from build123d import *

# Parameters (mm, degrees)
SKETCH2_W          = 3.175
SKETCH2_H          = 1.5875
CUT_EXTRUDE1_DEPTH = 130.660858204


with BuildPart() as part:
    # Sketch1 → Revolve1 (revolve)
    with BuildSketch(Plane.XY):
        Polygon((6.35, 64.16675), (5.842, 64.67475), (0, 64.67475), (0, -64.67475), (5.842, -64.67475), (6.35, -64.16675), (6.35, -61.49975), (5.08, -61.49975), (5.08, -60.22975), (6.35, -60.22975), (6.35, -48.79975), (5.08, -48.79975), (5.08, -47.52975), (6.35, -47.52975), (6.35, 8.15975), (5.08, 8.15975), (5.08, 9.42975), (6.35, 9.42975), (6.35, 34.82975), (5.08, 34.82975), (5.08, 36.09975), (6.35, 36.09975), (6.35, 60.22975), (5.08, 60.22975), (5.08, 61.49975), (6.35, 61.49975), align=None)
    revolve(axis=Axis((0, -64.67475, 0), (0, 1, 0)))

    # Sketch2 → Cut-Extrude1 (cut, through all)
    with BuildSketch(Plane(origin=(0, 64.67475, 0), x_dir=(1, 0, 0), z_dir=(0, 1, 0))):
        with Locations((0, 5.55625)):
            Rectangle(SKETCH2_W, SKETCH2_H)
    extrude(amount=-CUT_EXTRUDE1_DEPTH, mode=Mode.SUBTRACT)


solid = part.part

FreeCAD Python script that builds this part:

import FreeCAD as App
import Part
import Sketcher
Q = App.Units.Quantity

doc = App.newDocument("Part")
body = doc.addObject("PartDesign::Body", "Body")

# Sketch on XY plane
sketch1 = body.newObject("Sketcher::SketchObject", "Sketch")
sketch1.AttachmentSupport = (doc.getObject("XY_Plane"), [""])
sketch1.MapMode = "FlatFace"
sketch1.addGeometry(Part.LineSegment(App.Vector(6.35, 64.16675, 0), App.Vector(5.842, 64.67475, 0)), False)
sketch1.addGeometry(Part.LineSegment(App.Vector(5.842, 64.67475, 0), App.Vector(0, 64.67475, 0)), False)
sketch1.addGeometry(Part.LineSegment(App.Vector(0, 64.67475, 0), App.Vector(0, -64.67475, 0)), False)
sketch1.addGeometry(Part.LineSegment(App.Vector(0, -64.67475, 0), App.Vector(5.842, -64.67475, 0)), False)
sketch1.addGeometry(Part.LineSegment(App.Vector(5.842, -64.67475, 0), App.Vector(6.35, -64.16675, 0)), False)
sketch1.addGeometry(Part.LineSegment(App.Vector(6.35, -64.16675, 0), App.Vector(6.35, -61.49975, 0)), False)
sketch1.addGeometry(Part.LineSegment(App.Vector(6.35, -61.49975, 0), App.Vector(5.08, -61.49975, 0)), False)
sketch1.addGeometry(Part.LineSegment(App.Vector(5.08, -61.49975, 0), App.Vector(5.08, -60.22975, 0)), False)
sketch1.addGeometry(Part.LineSegment(App.Vector(5.08, -60.22975, 0), App.Vector(6.35, -60.22975, 0)), False)
sketch1.addGeometry(Part.LineSegment(App.Vector(6.35, -60.22975, 0), App.Vector(6.35, -48.79975, 0)), False)
sketch1.addGeometry(Part.LineSegment(App.Vector(6.35, -48.79975, 0), App.Vector(5.08, -48.79975, 0)), False)
sketch1.addGeometry(Part.LineSegment(App.Vector(5.08, -48.79975, 0), App.Vector(5.08, -47.52975, 0)), False)
sketch1.addGeometry(Part.LineSegment(App.Vector(5.08, -47.52975, 0), App.Vector(6.35, -47.52975, 0)), False)
sketch1.addGeometry(Part.LineSegment(App.Vector(6.35, -47.52975, 0), App.Vector(6.35, 8.15975, 0)), False)
sketch1.addGeometry(Part.LineSegment(App.Vector(6.35, 8.15975, 0), App.Vector(5.08, 8.15975, 0)), False)
sketch1.addGeometry(Part.LineSegment(App.Vector(5.08, 8.15975, 0), App.Vector(5.08, 9.42975, 0)), False)
sketch1.addGeometry(Part.LineSegment(App.Vector(5.08, 9.42975, 0), App.Vector(6.35, 9.42975, 0)), False)
sketch1.addGeometry(Part.LineSegment(App.Vector(6.35, 9.42975, 0), App.Vector(6.35, 34.82975, 0)), False)
sketch1.addGeometry(Part.LineSegment(App.Vector(6.35, 34.82975, 0), App.Vector(5.08, 34.82975, 0)), False)
sketch1.addGeometry(Part.LineSegment(App.Vector(5.08, 34.82975, 0), App.Vector(5.08, 36.09975, 0)), False)
sketch1.addGeometry(Part.LineSegment(App.Vector(5.08, 36.09975, 0), App.Vector(6.35, 36.09975, 0)), False)
sketch1.addGeometry(Part.LineSegment(App.Vector(6.35, 36.09975, 0), App.Vector(6.35, 60.22975, 0)), False)
sketch1.addGeometry(Part.LineSegment(App.Vector(6.35, 60.22975, 0), App.Vector(5.08, 60.22975, 0)), False)
sketch1.addGeometry(Part.LineSegment(App.Vector(5.08, 60.22975, 0), App.Vector(5.08, 61.49975, 0)), False)
sketch1.addGeometry(Part.LineSegment(App.Vector(5.08, 61.49975, 0), App.Vector(6.35, 61.49975, 0)), False)
sketch1.addGeometry(Part.LineSegment(App.Vector(6.35, 61.49975, 0), App.Vector(6.35, 64.16675, 0)), False)
sketch1.addConstraint(Sketcher.Constraint("Coincident", 0, 2, 1, 1))
sketch1.addConstraint(Sketcher.Constraint("Coincident", 1, 2, 2, 1))
sketch1.addConstraint(Sketcher.Constraint("Coincident", 2, 2, 3, 1))
sketch1.addConstraint(Sketcher.Constraint("Coincident", 3, 2, 4, 1))
sketch1.addConstraint(Sketcher.Constraint("Coincident", 4, 2, 5, 1))
sketch1.addConstraint(Sketcher.Constraint("Coincident", 5, 2, 6, 1))
sketch1.addConstraint(Sketcher.Constraint("Coincident", 6, 2, 7, 1))
sketch1.addConstraint(Sketcher.Constraint("Coincident", 7, 2, 8, 1))
sketch1.addConstraint(Sketcher.Constraint("Coincident", 8, 2, 9, 1))
sketch1.addConstraint(Sketcher.Constraint("Coincident", 9, 2, 10, 1))
sketch1.addConstraint(Sketcher.Constraint("Coincident", 10, 2, 11, 1))
sketch1.addConstraint(Sketcher.Constraint("Coincident", 11, 2, 12, 1))
sketch1.addConstraint(Sketcher.Constraint("Coincident", 12, 2, 13, 1))
sketch1.addConstraint(Sketcher.Constraint("Coincident", 13, 2, 14, 1))
sketch1.addConstraint(Sketcher.Constraint("Coincident", 14, 2, 15, 1))
sketch1.addConstraint(Sketcher.Constraint("Coincident", 15, 2, 16, 1))
sketch1.addConstraint(Sketcher.Constraint("Coincident", 16, 2, 17, 1))
sketch1.addConstraint(Sketcher.Constraint("Coincident", 17, 2, 18, 1))
sketch1.addConstraint(Sketcher.Constraint("Coincident", 18, 2, 19, 1))
sketch1.addConstraint(Sketcher.Constraint("Coincident", 19, 2, 20, 1))
sketch1.addConstraint(Sketcher.Constraint("Coincident", 20, 2, 21, 1))
sketch1.addConstraint(Sketcher.Constraint("Coincident", 21, 2, 22, 1))
sketch1.addConstraint(Sketcher.Constraint("Coincident", 22, 2, 23, 1))
sketch1.addConstraint(Sketcher.Constraint("Coincident", 23, 2, 24, 1))
sketch1.addConstraint(Sketcher.Constraint("Coincident", 24, 2, 25, 1))
sketch1.addConstraint(Sketcher.Constraint("Coincident", 25, 2, 0, 1))
sketch1.addConstraint(Sketcher.Constraint("Horizontal", 1))
sketch1.addConstraint(Sketcher.Constraint("Vertical", 2))
sketch1.addConstraint(Sketcher.Constraint("Horizontal", 3))
sketch1.addConstraint(Sketcher.Constraint("Vertical", 5))
sketch1.addConstraint(Sketcher.Constraint("Horizontal", 6))
sketch1.addConstraint(Sketcher.Constraint("Vertical", 7))
sketch1.addConstraint(Sketcher.Constraint("Horizontal", 8))
sketch1.addConstraint(Sketcher.Constraint("Vertical", 9))
sketch1.addConstraint(Sketcher.Constraint("Horizontal", 10))
sketch1.addConstraint(Sketcher.Constraint("Vertical", 11))
sketch1.addConstraint(Sketcher.Constraint("Horizontal", 12))
sketch1.addConstraint(Sketcher.Constraint("Vertical", 13))
sketch1.addConstraint(Sketcher.Constraint("Horizontal", 14))
sketch1.addConstraint(Sketcher.Constraint("Vertical", 15))
sketch1.addConstraint(Sketcher.Constraint("Horizontal", 16))
sketch1.addConstraint(Sketcher.Constraint("Vertical", 17))
sketch1.addConstraint(Sketcher.Constraint("Horizontal", 18))
sketch1.addConstraint(Sketcher.Constraint("Vertical", 19))
sketch1.addConstraint(Sketcher.Constraint("Horizontal", 20))
sketch1.addConstraint(Sketcher.Constraint("Vertical", 21))
sketch1.addConstraint(Sketcher.Constraint("Horizontal", 22))
sketch1.addConstraint(Sketcher.Constraint("Vertical", 23))
sketch1.addConstraint(Sketcher.Constraint("Horizontal", 24))
sketch1.addConstraint(Sketcher.Constraint("Vertical", 25))
sketch1.addConstraint(Sketcher.Constraint("Symmetric", 1, 2, 2, 2, -1, 1))
sketch1.addConstraint(Sketcher.Constraint("Symmetric", 8, 2, 21, 2, -1))
sketch1.addConstraint(Sketcher.Constraint("Symmetric", 6, 2, 23, 2, -1))
sketch1.addConstraint(Sketcher.Constraint("Symmetric", 4, 2, 25, 2, -1))
sketch1.addConstraint(Sketcher.Constraint("Perpendicular", 0, 4))
sketch1.addConstraint(Sketcher.Constraint("Vertical", 0, 2, 3, 2))
sketch1.addConstraint(Sketcher.Constraint("Vertical", 5, 2, 8, 2))
sketch1.addConstraint(Sketcher.Constraint("Vertical", 7, 2, 10, 2))
sketch1.addConstraint(Sketcher.Constraint("Vertical", 9, 2, 12, 2))
sketch1.addConstraint(Sketcher.Constraint("Vertical", 11, 2, 14, 2))
sketch1.addConstraint(Sketcher.Constraint("Vertical", 13, 2, 16, 2))
sketch1.addConstraint(Sketcher.Constraint("Vertical", 15, 2, 18, 2))
sketch1.addConstraint(Sketcher.Constraint("Equal", 24, 7))
sketch1.addConstraint(Sketcher.Constraint("Equal", 7, 11))
sketch1.addConstraint(Sketcher.Constraint("Equal", 11, 15))
sketch1.addConstraint(Sketcher.Constraint("Equal", 15, 19))
sketch1.addConstraint(Sketcher.Constraint("DistanceY", 17, 1, 17, 2, Q("1 in")))
sketch1.addConstraint(Sketcher.Constraint("DistanceY", 17, 2, 21, 2, Q("1 in")))
sketch1.addConstraint(Sketcher.Constraint("DistanceX", 1, 2, 1, 1, Q("0.23 in")))
sketch1.addConstraint(Sketcher.Constraint("DistanceX", 6, 2, 6, 1, Q("0.05 in")))
sketch1.addConstraint(Sketcher.Constraint("DistanceY", 9, 1, 9, 2, Q("0.45 in")))
sketch1.addConstraint(Sketcher.Constraint("DistanceX", -1, 1, 6, 2, Q("0.2 in")))
sketch1.addConstraint(Sketcher.Constraint("DistanceY", 5, 1, 5, 2, Q("0.105 in")))
sketch1.addConstraint(Sketcher.Constraint("DistanceY", 2, 2, 2, 1, Q("5.0925 in")))
revolution = body.newObject("PartDesign::Revolution", "Revolution")
revolution.Profile = sketch1
revolution.ReferenceAxis = (sketch1, ["V_Axis"])
revolution.Angle = 360

# Sketch on XZ plane
sketch2 = body.newObject("Sketcher::SketchObject", "Sketch001")
sketch2.AttachmentSupport = (doc.getObject("XZ_Plane"), [""])
sketch2.MapMode = "FlatFace"
sketch2.AttachmentOffset = App.Placement(App.Vector(0, 0, -64.67475), App.Rotation())
sketch2.addGeometry(Part.LineSegment(App.Vector(-1.5875, -6.35, 0), App.Vector(-1.5875, -4.7625, 0)), False)
sketch2.addGeometry(Part.LineSegment(App.Vector(-1.5875, -4.7625, 0), App.Vector(1.5875, -4.7625, 0)), False)
sketch2.addGeometry(Part.LineSegment(App.Vector(1.5875, -4.7625, 0), App.Vector(1.5875, -6.35, 0)), False)
sketch2.addGeometry(Part.LineSegment(App.Vector(1.5875, -6.35, 0), App.Vector(-1.5875, -6.35, 0)), False)
sketch2.addConstraint(Sketcher.Constraint("Coincident", 0, 2, 1, 1))
sketch2.addConstraint(Sketcher.Constraint("Coincident", 1, 2, 2, 1))
sketch2.addConstraint(Sketcher.Constraint("Coincident", 2, 2, 3, 1))
sketch2.addConstraint(Sketcher.Constraint("Coincident", 3, 2, 0, 1))
sketch2.addConstraint(Sketcher.Constraint("Vertical", 0))
sketch2.addConstraint(Sketcher.Constraint("Horizontal", 1))
sketch2.addConstraint(Sketcher.Constraint("Vertical", 2))
sketch2.addConstraint(Sketcher.Constraint("Horizontal", 3))
sketch2.addConstraint(Sketcher.Constraint("DistanceX", 1, 1, 1, 2, Q("0.125 in")))
sketch2.addConstraint(Sketcher.Constraint("DistanceY", 0, 1, 0, 2, Q("0.0625 in")))
sketch2.addConstraint(Sketcher.Constraint("DistanceY", 2, 2, -1, 1, Q("0.25 in")))
sketch2.addConstraint(Sketcher.Constraint("DistanceX", 0, 2, -1, 1, Q("0.0625 in")))
pocket1 = body.newObject("PartDesign::Pocket", "Pocket")
pocket1.Profile = sketch2
pocket1.Type = "ThroughAll"
pocket1.Reversed = True

doc.recompute()
